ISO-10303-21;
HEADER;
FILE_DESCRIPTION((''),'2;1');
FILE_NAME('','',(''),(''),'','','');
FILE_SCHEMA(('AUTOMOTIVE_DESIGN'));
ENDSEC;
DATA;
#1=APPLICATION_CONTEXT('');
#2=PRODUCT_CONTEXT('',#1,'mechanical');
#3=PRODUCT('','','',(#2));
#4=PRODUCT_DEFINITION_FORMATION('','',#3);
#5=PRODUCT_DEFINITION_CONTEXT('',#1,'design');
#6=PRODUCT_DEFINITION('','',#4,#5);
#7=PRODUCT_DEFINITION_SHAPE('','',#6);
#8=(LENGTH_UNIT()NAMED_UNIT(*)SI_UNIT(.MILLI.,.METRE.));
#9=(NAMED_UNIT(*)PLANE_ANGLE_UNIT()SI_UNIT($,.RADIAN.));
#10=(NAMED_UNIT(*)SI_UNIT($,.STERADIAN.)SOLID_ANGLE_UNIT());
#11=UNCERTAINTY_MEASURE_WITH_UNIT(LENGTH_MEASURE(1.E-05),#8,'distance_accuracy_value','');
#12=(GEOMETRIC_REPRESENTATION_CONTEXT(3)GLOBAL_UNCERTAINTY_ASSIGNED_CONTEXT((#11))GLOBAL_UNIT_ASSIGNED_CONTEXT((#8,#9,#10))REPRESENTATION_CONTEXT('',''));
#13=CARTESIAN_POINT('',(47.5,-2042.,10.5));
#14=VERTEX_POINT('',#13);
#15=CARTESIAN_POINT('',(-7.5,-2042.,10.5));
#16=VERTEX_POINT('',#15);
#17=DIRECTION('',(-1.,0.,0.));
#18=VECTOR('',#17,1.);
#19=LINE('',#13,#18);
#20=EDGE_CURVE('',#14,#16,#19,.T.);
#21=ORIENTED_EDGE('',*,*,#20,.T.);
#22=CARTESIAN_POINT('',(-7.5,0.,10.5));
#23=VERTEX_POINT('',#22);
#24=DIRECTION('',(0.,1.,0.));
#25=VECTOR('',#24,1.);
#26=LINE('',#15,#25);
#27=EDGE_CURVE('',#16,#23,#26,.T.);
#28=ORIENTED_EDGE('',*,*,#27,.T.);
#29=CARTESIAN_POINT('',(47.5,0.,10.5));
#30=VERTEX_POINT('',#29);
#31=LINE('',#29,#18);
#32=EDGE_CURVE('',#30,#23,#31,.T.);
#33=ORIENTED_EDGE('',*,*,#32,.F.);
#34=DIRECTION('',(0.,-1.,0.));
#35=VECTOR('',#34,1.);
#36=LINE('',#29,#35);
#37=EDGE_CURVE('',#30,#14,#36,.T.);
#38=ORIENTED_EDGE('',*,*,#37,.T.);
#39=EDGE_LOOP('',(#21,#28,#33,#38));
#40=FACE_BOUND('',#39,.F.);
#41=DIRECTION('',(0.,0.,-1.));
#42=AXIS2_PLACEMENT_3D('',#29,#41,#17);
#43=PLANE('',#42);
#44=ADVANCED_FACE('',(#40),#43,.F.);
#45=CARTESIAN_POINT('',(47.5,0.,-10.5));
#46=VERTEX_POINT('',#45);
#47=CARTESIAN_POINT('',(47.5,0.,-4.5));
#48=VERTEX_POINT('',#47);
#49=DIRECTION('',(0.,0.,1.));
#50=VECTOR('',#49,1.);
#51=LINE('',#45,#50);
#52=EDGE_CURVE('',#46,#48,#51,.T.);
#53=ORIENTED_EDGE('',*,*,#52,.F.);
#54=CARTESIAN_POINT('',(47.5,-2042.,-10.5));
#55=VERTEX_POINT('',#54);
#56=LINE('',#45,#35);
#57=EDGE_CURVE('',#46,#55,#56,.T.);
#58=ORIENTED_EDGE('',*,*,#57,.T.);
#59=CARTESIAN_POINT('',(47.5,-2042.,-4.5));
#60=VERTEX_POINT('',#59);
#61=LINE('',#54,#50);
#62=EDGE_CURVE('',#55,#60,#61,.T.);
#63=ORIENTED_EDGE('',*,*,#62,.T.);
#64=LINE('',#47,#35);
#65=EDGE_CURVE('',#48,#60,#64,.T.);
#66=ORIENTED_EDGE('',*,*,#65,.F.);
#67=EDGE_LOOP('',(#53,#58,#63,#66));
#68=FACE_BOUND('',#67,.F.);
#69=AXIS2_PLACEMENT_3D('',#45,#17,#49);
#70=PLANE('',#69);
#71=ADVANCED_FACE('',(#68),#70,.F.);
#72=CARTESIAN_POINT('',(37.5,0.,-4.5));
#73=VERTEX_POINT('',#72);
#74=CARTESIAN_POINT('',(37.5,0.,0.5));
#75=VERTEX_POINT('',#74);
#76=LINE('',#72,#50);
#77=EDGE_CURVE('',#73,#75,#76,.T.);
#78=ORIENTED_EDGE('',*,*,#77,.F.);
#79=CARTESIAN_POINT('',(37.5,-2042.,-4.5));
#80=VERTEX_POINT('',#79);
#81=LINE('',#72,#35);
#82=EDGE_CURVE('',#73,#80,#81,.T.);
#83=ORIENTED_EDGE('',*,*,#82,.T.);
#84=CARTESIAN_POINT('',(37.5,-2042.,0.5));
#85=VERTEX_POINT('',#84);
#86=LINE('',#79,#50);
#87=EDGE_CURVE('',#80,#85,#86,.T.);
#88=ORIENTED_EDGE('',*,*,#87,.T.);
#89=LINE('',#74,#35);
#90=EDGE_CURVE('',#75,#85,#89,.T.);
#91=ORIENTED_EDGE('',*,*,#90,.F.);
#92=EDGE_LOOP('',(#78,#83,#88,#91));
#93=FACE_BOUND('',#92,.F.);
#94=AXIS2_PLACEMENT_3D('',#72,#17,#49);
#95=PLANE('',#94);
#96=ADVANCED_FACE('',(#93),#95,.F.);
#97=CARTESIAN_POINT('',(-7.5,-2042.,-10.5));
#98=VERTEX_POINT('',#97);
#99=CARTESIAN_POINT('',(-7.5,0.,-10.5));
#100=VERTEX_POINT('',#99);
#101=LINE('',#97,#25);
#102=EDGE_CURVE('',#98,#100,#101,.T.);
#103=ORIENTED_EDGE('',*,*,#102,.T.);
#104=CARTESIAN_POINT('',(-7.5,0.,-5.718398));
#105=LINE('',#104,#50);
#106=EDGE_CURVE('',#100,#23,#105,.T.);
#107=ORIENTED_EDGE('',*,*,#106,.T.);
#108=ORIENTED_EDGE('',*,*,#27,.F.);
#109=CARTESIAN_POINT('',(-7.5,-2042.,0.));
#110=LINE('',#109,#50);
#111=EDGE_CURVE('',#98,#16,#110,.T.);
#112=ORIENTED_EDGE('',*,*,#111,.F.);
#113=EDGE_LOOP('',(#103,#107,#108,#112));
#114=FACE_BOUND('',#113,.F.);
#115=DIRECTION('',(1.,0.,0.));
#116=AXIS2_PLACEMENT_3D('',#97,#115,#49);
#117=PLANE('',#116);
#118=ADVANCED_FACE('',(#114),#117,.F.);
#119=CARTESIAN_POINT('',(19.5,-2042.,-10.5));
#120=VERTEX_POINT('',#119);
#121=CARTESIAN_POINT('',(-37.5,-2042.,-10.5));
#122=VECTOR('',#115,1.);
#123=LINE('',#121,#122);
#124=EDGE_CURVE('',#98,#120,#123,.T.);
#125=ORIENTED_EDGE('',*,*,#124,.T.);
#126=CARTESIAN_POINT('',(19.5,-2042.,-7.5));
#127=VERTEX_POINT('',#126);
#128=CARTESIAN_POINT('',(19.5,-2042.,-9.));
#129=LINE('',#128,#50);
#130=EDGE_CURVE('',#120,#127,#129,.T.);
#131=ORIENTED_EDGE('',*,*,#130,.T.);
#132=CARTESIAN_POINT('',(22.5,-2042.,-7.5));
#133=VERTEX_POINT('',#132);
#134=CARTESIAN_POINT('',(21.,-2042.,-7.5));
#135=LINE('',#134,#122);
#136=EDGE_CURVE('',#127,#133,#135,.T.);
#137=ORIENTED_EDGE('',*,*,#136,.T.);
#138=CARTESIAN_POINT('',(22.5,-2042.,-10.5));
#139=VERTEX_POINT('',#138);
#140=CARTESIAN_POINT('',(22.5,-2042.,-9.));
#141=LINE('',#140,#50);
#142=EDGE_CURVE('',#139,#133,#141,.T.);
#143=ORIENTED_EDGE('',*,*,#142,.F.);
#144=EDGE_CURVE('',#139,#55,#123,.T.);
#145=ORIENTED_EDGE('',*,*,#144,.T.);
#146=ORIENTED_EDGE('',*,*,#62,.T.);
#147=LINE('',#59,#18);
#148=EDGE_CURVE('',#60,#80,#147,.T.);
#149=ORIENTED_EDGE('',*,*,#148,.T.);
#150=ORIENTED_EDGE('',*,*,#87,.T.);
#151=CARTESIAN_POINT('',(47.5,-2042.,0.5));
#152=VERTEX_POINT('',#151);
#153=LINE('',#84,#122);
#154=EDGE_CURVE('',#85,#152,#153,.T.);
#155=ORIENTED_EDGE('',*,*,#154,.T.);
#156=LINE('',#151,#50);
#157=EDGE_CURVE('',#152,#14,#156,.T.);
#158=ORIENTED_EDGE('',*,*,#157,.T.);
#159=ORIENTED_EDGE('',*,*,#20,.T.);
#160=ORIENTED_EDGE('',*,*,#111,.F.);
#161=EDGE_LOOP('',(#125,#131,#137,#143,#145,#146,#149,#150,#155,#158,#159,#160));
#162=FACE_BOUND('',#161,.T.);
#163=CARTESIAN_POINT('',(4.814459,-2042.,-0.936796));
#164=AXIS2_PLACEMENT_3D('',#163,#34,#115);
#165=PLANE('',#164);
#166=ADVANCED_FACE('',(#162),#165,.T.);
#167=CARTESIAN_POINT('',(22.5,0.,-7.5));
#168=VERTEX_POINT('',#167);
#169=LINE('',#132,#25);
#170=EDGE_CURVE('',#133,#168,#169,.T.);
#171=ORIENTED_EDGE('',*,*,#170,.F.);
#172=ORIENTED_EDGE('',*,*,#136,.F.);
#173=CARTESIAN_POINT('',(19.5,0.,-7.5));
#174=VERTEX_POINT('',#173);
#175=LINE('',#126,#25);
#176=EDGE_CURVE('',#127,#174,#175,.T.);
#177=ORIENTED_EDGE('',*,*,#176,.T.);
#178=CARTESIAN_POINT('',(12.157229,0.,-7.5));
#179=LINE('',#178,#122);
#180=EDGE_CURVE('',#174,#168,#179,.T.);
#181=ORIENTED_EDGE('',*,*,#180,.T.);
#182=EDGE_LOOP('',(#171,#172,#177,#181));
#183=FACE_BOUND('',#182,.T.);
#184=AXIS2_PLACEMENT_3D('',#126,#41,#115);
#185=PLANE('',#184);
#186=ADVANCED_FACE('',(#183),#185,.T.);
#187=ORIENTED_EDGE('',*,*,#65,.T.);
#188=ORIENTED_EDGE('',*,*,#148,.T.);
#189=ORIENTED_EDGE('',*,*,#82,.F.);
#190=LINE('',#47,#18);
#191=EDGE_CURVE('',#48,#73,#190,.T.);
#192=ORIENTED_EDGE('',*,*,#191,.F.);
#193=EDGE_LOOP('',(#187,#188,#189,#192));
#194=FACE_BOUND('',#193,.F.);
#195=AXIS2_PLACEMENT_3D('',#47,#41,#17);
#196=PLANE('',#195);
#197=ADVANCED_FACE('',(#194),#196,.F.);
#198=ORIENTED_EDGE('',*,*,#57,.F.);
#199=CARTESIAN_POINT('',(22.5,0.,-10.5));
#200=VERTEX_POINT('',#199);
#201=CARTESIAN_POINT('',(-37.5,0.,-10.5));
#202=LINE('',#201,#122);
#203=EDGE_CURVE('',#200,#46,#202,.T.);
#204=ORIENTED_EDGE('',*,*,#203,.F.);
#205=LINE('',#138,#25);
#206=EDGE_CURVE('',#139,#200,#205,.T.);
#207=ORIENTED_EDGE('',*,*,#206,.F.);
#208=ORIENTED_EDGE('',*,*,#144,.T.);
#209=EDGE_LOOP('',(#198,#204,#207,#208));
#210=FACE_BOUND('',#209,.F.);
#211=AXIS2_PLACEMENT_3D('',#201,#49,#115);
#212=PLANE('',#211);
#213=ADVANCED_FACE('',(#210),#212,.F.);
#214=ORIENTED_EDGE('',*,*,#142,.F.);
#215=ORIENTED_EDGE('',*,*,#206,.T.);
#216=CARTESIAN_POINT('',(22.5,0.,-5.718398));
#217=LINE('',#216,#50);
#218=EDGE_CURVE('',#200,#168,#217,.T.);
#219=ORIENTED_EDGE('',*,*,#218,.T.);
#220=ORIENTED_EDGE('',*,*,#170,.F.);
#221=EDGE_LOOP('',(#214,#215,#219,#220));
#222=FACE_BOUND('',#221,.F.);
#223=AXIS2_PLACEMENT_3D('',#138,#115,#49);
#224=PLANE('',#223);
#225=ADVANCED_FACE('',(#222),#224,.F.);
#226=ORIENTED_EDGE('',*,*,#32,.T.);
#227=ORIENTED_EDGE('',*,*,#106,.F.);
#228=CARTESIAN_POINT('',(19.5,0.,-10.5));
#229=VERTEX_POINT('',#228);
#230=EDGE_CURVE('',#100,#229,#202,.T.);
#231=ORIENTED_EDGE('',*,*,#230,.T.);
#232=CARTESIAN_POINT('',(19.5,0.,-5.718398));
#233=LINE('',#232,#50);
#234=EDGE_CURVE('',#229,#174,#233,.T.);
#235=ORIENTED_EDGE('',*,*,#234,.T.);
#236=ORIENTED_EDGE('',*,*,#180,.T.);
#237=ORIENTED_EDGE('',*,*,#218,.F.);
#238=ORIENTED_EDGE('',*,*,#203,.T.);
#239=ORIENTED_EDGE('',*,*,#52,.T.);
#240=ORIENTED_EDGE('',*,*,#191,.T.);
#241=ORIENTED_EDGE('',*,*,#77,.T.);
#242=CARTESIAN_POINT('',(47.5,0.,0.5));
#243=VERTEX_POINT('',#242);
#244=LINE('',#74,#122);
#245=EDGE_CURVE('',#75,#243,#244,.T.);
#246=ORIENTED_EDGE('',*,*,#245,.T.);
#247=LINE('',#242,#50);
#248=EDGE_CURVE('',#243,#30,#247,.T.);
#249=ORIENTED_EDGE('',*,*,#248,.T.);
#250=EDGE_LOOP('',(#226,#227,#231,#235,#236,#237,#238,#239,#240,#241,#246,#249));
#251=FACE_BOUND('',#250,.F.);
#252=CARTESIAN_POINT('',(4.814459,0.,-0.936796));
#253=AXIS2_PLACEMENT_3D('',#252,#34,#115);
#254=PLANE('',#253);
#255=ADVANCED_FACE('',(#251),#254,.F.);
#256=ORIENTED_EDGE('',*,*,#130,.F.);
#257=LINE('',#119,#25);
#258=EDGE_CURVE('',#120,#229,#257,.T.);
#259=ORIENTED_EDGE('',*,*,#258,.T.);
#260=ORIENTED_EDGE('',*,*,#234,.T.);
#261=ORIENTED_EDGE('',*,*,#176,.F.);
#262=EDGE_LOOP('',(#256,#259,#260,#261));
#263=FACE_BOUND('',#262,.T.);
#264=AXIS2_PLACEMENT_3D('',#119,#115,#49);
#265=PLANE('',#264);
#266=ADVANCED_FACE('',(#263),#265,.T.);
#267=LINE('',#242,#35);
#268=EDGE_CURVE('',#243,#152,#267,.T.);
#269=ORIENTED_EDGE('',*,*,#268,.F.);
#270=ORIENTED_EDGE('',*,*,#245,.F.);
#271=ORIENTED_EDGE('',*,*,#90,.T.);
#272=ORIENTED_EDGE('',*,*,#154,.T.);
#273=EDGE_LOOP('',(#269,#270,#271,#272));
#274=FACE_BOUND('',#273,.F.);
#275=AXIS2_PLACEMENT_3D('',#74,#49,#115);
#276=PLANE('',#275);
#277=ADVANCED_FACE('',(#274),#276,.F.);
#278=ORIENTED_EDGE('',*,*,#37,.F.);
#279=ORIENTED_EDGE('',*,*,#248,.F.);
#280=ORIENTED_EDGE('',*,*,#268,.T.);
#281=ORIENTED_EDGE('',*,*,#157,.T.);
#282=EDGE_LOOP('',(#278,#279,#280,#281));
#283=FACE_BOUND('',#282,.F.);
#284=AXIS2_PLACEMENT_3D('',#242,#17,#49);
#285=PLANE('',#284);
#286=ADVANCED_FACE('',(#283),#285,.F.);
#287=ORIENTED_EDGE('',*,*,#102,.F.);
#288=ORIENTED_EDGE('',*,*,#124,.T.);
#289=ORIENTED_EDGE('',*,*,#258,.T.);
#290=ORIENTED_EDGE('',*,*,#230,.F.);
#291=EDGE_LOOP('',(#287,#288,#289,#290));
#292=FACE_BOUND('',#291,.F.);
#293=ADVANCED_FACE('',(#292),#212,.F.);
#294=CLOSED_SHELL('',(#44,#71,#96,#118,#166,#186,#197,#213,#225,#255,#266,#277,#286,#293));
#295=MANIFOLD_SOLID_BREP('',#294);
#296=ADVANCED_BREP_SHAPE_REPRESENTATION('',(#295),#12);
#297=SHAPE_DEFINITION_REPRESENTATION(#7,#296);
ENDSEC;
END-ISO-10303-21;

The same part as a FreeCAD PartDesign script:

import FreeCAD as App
import Part
import Sketcher
Q = App.Units.Quantity


def add_polygon(sketch, points):
    """Adds a closed chain of lines whose ends are joined by coincident constraints."""
    first, n = sketch.GeometryCount, len(points)
    for a, b in zip(points, points[1:] + points[:1]):
        sketch.addGeometry(Part.LineSegment(App.Vector(*a, 0), App.Vector(*b, 0)), False)
    for i in range(n):
        sketch.addConstraint(Sketcher.Constraint("Coincident", first + i, 2, first + (i + 1) % n, 1))

doc = App.newDocument("Part")
body = doc.addObject("PartDesign::Body", "Body")

# Sketch on XZ plane
sketch1 = body.newObject("Sketcher::SketchObject", "Sketch")
sketch1.AttachmentSupport = (doc.getObject("XZ_Plane"), [""])
sketch1.MapMode = "FlatFace"
add_polygon(sketch1, [(48, 10), (-22, 10), (-28, 0), (-48, 0), (-48, -4), (-38, -4), (-38, -10), (48, -10), (48, -4), (38, -4), (38, 0), (48, 0)])  # lines 0-11
sketch1.addConstraint([
    Sketcher.Constraint("Horizontal", 0),
    Sketcher.Constraint("Horizontal", 2),
    Sketcher.Constraint("Vertical", 3),
    Sketcher.Constraint("Horizontal", 4),
    Sketcher.Constraint("Vertical", 5),
    Sketcher.Constraint("Horizontal", 6),
    Sketcher.Constraint("Vertical", 7),
    Sketcher.Constraint("Horizontal", 8),
    Sketcher.Constraint("Vertical", 9),
    Sketcher.Constraint("Horizontal", 10),
    Sketcher.Constraint("Vertical", 11),
    Sketcher.Constraint("Symmetric", 3, 2, 7, 2, -2),
    Sketcher.Constraint("Symmetric", 2, 2, 10, 2, -2),
    Sketcher.Constraint("Equal", 4, 8),
    Sketcher.Constraint("Equal", 10, 11),
    Sketcher.Constraint("DistanceX", 2, 2, 2, 1, Q("20 mm")),
    Sketcher.Constraint("DistanceX", 4, 1, 4, 2, Q("10 mm")),
    Sketcher.Constraint("DistanceX", 6, 1, 6, 2, Q("85 mm")),
    Sketcher.Constraint("DistanceY", 3, 2, 3, 1, Q("5 mm")),
    Sketcher.Constraint("DistanceY", 5, 2, 5, 1, Q("6 mm")),
    Sketcher.Constraint("Angle", 1, Q("-120.000001 deg")),
    Sketcher.Constraint("DistanceY", -1, 1, 0, 2, Q("10.5 mm")),
])
pad1 = body.newObject("PartDesign::Pad", "Pad")
pad1.Profile = sketch1
pad1.Length = 2042

# Sketch on XZ plane
sketch2 = body.newObject("Sketcher::SketchObject", "Sketch001")
sketch2.AttachmentSupport = (doc.getObject("XZ_Plane"), [""])
sketch2.MapMode = "FlatFace"
sketch2.AttachmentOffset = App.Placement(App.Vector(0, 0, 2042), App.Rotation())
add_polygon(sketch2, [(19.5, -7.5), (19.5, -10.5), (22.5, -10.5), (22.5, -7.5)])  # lines 0-3
add_polygon(sketch2, [(-47.5, 10.5), (-47.5, -10.5), (-7.5, -10.5), (-7.5, 10.5)])  # lines 4-7
sketch2.addConstraint([
    Sketcher.Constraint("Vertical", 0),
    Sketcher.Constraint("Horizontal", 1),
    Sketcher.Constraint("Vertical", 2),
    Sketcher.Constraint("Horizontal", 3),
    Sketcher.Constraint("Vertical", 4),
    Sketcher.Constraint("Horizontal", 5),
    Sketcher.Constraint("Vertical", 6),
    Sketcher.Constraint("Horizontal", 7),
    Sketcher.Constraint("Horizontal", 1, 2, 4, 2),
    Sketcher.Constraint("Equal", 3, 0),
    Sketcher.Constraint("DistanceX", 1, 1, 1, 2, Q("3 mm")),
    Sketcher.Constraint("DistanceX", 5, 1, 5, 2, Q("40 mm")),
    Sketcher.Constraint("DistanceY", 4, 2, 4, 1, Q("21 mm")),
    Sketcher.Constraint("DistanceX", 4, 2, 0, 2, Q("67 mm")),
    Sketcher.Constraint("DistanceX", -1, 1, 0, 2, Q("19.5 mm")),
    Sketcher.Constraint("DistanceY", 0, 2, -1, 1, Q("10.5 mm")),
])
pocket1 = body.newObject("PartDesign::Pocket", "Pocket")
pocket1.Profile = sketch2
pocket1.Type = "ThroughAll"

doc.recompute()
